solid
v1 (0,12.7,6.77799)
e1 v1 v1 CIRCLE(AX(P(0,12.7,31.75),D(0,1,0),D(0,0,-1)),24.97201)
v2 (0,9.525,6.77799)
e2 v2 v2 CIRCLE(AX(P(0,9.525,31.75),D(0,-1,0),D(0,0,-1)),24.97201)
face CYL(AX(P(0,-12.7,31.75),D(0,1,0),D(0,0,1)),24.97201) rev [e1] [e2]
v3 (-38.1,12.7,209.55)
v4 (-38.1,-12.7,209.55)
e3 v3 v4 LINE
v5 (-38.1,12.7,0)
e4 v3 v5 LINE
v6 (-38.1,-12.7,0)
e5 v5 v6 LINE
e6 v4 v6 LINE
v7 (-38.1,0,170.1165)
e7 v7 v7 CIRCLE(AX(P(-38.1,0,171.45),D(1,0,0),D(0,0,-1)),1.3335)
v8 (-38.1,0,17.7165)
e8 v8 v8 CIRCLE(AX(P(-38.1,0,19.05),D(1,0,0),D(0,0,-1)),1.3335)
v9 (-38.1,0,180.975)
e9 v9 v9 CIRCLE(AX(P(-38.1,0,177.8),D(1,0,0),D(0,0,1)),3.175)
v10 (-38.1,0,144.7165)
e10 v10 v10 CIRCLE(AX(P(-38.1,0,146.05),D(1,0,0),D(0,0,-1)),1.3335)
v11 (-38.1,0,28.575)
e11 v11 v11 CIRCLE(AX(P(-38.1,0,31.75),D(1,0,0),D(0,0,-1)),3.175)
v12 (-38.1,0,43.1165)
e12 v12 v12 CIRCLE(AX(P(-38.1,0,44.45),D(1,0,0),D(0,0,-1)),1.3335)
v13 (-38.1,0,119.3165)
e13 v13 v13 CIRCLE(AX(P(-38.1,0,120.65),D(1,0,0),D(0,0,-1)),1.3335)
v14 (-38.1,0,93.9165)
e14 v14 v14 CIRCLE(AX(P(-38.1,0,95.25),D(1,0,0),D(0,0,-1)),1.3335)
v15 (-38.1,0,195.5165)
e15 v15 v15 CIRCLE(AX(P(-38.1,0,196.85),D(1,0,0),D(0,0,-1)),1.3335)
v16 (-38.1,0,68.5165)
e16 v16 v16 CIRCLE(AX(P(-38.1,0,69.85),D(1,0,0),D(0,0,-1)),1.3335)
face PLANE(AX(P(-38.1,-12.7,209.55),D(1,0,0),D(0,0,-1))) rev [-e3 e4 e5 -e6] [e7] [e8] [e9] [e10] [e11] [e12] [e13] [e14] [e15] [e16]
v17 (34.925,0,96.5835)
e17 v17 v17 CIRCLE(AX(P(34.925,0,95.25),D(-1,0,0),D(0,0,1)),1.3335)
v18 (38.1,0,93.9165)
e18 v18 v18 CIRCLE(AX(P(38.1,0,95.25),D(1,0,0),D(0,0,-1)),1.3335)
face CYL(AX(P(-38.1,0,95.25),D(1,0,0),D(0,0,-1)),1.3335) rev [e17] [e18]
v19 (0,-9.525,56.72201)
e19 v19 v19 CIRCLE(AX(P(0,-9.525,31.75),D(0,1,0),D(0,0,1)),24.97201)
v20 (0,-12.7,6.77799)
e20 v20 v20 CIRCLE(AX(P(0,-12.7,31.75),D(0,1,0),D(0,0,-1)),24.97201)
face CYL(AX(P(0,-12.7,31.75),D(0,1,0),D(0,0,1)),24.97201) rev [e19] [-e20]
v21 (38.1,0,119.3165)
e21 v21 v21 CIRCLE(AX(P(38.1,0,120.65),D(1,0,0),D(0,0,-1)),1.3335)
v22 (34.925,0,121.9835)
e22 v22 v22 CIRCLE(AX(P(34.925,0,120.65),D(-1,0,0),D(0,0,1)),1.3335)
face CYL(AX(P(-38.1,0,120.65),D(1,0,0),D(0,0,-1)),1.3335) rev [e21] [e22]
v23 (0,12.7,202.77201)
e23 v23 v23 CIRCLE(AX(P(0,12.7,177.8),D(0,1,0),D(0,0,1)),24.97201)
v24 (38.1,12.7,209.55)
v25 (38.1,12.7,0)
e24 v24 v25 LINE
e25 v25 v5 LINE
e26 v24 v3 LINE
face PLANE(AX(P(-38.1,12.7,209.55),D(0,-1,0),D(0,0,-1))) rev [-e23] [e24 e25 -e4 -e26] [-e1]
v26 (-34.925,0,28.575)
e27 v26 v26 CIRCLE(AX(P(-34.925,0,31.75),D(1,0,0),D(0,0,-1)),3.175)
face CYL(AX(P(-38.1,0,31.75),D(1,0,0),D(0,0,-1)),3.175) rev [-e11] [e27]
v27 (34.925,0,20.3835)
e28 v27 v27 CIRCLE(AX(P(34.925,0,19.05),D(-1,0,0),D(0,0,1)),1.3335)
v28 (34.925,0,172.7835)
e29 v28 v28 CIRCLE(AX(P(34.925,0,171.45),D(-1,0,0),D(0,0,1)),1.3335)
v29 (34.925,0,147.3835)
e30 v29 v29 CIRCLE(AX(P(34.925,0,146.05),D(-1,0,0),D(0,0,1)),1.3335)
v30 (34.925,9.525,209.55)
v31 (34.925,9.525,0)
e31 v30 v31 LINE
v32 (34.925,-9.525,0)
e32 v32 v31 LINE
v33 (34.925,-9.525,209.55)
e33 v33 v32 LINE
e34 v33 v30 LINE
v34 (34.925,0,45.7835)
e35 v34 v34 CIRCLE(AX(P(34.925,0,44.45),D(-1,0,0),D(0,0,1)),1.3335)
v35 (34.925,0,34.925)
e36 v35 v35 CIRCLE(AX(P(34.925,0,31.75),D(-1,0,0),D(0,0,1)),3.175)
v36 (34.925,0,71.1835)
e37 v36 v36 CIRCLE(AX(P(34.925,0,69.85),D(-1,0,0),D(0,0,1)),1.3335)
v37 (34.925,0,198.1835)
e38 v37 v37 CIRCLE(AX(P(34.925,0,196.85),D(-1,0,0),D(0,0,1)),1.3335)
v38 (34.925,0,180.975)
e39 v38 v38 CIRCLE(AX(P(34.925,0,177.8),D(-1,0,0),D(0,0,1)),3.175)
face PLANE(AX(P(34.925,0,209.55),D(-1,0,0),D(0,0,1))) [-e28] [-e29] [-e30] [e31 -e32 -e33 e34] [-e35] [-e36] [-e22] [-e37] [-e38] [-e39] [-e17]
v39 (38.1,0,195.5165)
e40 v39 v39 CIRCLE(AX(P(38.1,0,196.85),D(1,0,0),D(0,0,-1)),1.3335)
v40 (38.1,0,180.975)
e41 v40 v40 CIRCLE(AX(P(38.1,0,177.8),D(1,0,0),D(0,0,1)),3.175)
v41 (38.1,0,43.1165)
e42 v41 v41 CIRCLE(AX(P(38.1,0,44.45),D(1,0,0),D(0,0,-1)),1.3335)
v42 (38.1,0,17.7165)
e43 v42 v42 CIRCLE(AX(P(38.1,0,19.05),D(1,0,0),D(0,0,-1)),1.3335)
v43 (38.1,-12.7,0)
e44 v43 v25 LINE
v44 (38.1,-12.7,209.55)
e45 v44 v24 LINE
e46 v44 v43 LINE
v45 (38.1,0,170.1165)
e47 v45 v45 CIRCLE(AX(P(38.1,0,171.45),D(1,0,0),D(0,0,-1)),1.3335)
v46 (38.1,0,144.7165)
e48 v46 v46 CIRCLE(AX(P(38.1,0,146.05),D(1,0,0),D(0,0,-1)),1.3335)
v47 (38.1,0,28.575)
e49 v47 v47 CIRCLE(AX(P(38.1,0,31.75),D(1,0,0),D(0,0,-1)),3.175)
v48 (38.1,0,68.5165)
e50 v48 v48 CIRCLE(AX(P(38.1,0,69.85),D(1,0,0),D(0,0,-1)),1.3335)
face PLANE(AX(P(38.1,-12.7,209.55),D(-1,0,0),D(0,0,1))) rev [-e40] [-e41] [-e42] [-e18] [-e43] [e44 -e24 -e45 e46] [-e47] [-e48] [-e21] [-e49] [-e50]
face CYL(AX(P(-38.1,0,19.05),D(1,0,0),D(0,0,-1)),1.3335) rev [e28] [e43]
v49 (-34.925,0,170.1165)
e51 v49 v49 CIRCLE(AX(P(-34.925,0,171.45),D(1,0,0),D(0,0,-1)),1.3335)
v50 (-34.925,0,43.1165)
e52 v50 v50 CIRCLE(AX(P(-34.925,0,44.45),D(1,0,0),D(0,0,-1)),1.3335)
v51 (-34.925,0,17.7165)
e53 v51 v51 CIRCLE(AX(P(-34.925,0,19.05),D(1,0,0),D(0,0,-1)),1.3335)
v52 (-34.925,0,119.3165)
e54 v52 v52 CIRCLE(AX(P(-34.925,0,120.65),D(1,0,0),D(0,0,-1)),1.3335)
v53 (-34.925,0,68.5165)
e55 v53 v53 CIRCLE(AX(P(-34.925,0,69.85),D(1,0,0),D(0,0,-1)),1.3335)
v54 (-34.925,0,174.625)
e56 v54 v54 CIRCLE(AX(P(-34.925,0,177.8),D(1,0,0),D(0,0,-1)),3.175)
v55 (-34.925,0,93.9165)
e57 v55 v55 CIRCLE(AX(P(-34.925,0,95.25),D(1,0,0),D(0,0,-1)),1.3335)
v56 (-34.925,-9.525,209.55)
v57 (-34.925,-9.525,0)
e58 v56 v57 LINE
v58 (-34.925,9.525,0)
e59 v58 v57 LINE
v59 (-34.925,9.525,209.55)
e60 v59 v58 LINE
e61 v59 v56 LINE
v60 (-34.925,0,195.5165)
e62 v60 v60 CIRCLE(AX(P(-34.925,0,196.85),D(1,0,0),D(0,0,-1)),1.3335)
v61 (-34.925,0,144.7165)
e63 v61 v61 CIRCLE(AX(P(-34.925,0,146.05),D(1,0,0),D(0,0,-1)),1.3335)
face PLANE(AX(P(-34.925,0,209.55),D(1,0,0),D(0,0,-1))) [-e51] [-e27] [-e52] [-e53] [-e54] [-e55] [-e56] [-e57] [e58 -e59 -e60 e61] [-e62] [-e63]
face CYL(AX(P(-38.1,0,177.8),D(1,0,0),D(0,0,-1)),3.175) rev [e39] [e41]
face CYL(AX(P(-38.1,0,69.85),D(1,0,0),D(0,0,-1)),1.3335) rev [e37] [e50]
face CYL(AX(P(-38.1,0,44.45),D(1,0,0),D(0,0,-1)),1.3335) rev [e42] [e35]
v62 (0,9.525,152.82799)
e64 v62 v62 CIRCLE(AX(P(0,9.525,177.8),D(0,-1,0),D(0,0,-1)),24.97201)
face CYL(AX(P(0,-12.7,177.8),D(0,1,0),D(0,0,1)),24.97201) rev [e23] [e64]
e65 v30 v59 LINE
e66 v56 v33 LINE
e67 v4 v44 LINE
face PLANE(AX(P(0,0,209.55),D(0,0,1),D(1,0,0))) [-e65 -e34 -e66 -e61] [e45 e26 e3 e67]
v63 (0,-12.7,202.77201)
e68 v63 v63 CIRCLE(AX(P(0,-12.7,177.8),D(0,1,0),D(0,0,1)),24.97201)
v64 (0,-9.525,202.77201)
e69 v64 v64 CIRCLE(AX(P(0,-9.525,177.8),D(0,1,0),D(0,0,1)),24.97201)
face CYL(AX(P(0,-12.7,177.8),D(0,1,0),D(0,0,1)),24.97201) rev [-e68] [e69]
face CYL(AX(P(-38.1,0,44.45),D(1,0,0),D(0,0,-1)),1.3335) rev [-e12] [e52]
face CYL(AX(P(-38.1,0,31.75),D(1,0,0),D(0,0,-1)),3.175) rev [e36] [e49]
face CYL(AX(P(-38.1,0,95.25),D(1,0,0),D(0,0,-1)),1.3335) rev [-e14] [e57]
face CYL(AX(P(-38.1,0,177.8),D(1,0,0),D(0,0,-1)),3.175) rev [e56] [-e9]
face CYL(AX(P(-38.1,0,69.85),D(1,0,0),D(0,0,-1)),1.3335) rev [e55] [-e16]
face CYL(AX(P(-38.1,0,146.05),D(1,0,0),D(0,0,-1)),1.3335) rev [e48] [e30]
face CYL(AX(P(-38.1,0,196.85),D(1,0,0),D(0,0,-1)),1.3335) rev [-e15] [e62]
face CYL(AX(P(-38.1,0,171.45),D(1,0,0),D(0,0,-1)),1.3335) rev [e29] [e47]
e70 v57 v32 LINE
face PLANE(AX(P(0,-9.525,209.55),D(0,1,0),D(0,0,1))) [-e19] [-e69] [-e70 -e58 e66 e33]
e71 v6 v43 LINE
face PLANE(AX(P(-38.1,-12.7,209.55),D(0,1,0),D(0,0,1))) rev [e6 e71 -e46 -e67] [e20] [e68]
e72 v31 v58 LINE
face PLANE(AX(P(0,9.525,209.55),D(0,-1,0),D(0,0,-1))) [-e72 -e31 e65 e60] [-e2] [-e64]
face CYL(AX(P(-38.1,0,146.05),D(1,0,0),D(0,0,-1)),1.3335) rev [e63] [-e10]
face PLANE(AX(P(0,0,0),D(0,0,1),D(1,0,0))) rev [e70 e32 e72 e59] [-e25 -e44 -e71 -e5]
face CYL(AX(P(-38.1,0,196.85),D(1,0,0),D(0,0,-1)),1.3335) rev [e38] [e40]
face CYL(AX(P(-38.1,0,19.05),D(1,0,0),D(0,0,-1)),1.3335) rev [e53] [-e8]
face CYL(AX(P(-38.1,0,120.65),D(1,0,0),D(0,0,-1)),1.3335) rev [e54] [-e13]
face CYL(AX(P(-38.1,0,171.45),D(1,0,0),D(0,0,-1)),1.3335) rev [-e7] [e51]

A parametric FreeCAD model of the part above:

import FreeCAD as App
import Part
import Sketcher
from FreeCAD import Vector
Q = App.Units.Quantity


def add_polygon(sketch, points):
    """Adds a closed chain of lines whose ends are joined by coincident constraints."""
    first, n = sketch.GeometryCount, len(points)
    for a, b in zip(points, points[1:] + points[:1]):
        sketch.addGeometry(Part.LineSegment(App.Vector(*a, 0), App.Vector(*b, 0)), False)
    for i in range(n):
        sketch.addConstraint(Sketcher.Constraint("Coincident", first + i, 2, first + (i + 1) % n, 1))

doc = App.newDocument("Part")
params = doc.addObject("Spreadsheet::Sheet", "Params")
for row, (alias, value) in enumerate([
    ("sketch1_width", "3 in"),
    ("sketch1_height", "1 in"),
    ("sketch1_width2", "2.75 in"),
    ("sketch1_height2", "0.75 in"),
    ("pad1_length", "8.25 in"),
    ("sketch3_diameter", "0.105 in"),
    ("linearpattern_pitch", "1 in"),
    ("sketch4_diameter", "0.25 in"),
], start=1):
    params.set(f"A{row}", alias)
    params.set(f"B{row}", "=" + value)
    params.setAlias(f"B{row}", alias)

body = doc.addObject("PartDesign::Body", "Body")

# Sketch on XY plane
sketch1 = body.newObject("Sketcher::SketchObject", "Sketch")
sketch1.AttachmentSupport = (doc.getObject("XY_Plane"), [""])
sketch1.MapMode = "FlatFace"
add_polygon(sketch1, [(-38.1, 12.7), (-38.1, -12.7), (38.1, -12.7), (38.1, 12.7)])  # lines 0-3
add_polygon(sketch1, [(34.925, -9.525), (-34.925, -9.525), (-34.925, 9.525), (34.925, 9.525)])  # lines 4-7
sketch1.addConstraint([
    Sketcher.Constraint("Vertical", 0),
    Sketcher.Constraint("Horizontal", 1),
    Sketcher.Constraint("Vertical", 2),
    Sketcher.Constraint("Horizontal", 3),
    Sketcher.Constraint("Horizontal", 4),
    Sketcher.Constraint("Vertical", 5),
    Sketcher.Constraint("Horizontal", 6),
    Sketcher.Constraint("Vertical", 7),
    Sketcher.Constraint("Symmetric", 0, 2, 2, 2, -1, 1),
    Sketcher.Constraint("Symmetric", 4, 2, 6, 2, -1, 1),
    Sketcher.Constraint("DistanceX", 1, 1, 1, 2, Q("3 in")),
    Sketcher.Constraint("DistanceY", 0, 2, 0, 1, Q("1 in")),
    Sketcher.Constraint("DistanceX", 4, 2, 4, 1, Q("2.75 in")),
    Sketcher.Constraint("DistanceY", 5, 1, 5, 2, Q("0.75 in")),
])
sketch1.setExpression("Constraints[18]", "Params.sketch1_width")
sketch1.setExpression("Constraints[19]", "Params.sketch1_height")
sketch1.setExpression("Constraints[20]", "Params.sketch1_width2")
sketch1.setExpression("Constraints[21]", "Params.sketch1_height2")
pad1 = body.newObject("PartDesign::Pad", "Pad")
pad1.Profile = sketch1
pad1.setExpression("Length", "Params.pad1_length")

# Sketch on XZ plane
sketch2 = body.newObject("Sketcher::SketchObject", "Sketch001")
sketch2.AttachmentSupport = (doc.getObject("XZ_Plane"), [""])
sketch2.MapMode = "FlatFace"
sketch2.AttachmentOffset = App.Placement(Vector(0, 0, -0.5 * 25.4), App.Rotation())
sketch2.addGeometry([
    Part.Circle(Vector(0, 177.8, 0), Vector(0, 0, 1), 24.97201),
    Part.Circle(Vector(0, 31.75, 0), Vector(0, 0, 1), 24.97201),
], False)
sketch2.addConstraint([
    Sketcher.Constraint("Equal", 0, 1),
    Sketcher.Constraint("PointOnObject", 0, 3, -2),
    Sketcher.Constraint("PointOnObject", 1, 3, -2),
    Sketcher.Constraint("DistanceY", -1, 1, 0, 3, Q("7 in")),
    Sketcher.Constraint("Diameter", 0, Q("1.9663 in")),
    Sketcher.Constraint("DistanceY", -1, 1, 1, 3, Q("1.25 in")),
])
pocket1 = body.newObject("PartDesign::Pocket", "Pocket")
pocket1.Profile = sketch2
pocket1.Type = "ThroughAll"
pocket1.Reversed = True

# Sketch on YZ plane
sketch3 = body.newObject("Sketcher::SketchObject", "Sketch002")
sketch3.AttachmentSupport = (doc.getObject("YZ_Plane"), [""])
sketch3.MapMode = "FlatFace"
sketch3.AttachmentOffset = App.Placement(Vector(0, 0, 1.5 * 25.4), App.Rotation())
sketch3.addGeometry(Part.Circle(Vector(0, 196.85, 0), Vector(0, 0, 1), 1.3335), False)
sketch3.addConstraint([
    Sketcher.Constraint("PointOnObject", 0, 3, -2),
    Sketcher.Constraint("Diameter", 0, Q("0.105 in")),
    Sketcher.Constraint("DistanceY", -1, 1, 0, 3, Q("7.75 in")),
])
sketch3.setExpression("Constraints[1]", "Params.sketch3_diameter")
pocket2 = body.newObject("PartDesign::Pocket", "Pocket001")
pocket2.Profile = sketch3
pocket2.Type = "ThroughAll"
doc.recompute()

linearpattern = body.newObject("PartDesign::LinearPattern", "LinearPattern")
linearpattern.Originals = [pocket2]
linearpattern.Direction = (doc.getObject("Z_Axis"), [""])
linearpattern.Mode = "offset"
linearpattern.setExpression("Offset", "Params.linearpattern_pitch")
linearpattern.Occurrences = 9
linearpattern.Reversed = True
body.Tip = linearpattern

# Sketch on YZ plane
sketch4 = body.newObject("Sketcher::SketchObject", "Sketch003")
sketch4.AttachmentSupport = (doc.getObject("YZ_Plane"), [""])
sketch4.MapMode = "FlatFace"
sketch4.AttachmentOffset = App.Placement(Vector(0, 0, 1.5 * 25.4), App.Rotation())
sketch4.addGeometry([
    Part.Circle(Vector(0, 31.75, 0), Vector(0, 0, 1), 3.175),
    Part.Circle(Vector(0, 177.8, 0), Vector(0, 0, 1), 3.175),
], False)
sketch4.addConstraint([
    Sketcher.Constraint("Equal", 0, 1),
    Sketcher.Constraint("PointOnObject", 0, 3, -2),
    Sketcher.Constraint("PointOnObject", 1, 3, -2),
    Sketcher.Constraint("Diameter", 0, Q("0.25 in")),
    Sketcher.Constraint("DistanceY", -1, 1, 1, 3, Q("7 in")),
    Sketcher.Constraint("DistanceY", -1, 1, 0, 3, Q("1.25 in")),
])
sketch4.setExpression("Constraints[3]", "Params.sketch4_diameter")
pocket3 = body.newObject("PartDesign::Pocket", "Pocket002")
pocket3.Profile = sketch4
pocket3.Type = "ThroughAll"

doc.recompute()
